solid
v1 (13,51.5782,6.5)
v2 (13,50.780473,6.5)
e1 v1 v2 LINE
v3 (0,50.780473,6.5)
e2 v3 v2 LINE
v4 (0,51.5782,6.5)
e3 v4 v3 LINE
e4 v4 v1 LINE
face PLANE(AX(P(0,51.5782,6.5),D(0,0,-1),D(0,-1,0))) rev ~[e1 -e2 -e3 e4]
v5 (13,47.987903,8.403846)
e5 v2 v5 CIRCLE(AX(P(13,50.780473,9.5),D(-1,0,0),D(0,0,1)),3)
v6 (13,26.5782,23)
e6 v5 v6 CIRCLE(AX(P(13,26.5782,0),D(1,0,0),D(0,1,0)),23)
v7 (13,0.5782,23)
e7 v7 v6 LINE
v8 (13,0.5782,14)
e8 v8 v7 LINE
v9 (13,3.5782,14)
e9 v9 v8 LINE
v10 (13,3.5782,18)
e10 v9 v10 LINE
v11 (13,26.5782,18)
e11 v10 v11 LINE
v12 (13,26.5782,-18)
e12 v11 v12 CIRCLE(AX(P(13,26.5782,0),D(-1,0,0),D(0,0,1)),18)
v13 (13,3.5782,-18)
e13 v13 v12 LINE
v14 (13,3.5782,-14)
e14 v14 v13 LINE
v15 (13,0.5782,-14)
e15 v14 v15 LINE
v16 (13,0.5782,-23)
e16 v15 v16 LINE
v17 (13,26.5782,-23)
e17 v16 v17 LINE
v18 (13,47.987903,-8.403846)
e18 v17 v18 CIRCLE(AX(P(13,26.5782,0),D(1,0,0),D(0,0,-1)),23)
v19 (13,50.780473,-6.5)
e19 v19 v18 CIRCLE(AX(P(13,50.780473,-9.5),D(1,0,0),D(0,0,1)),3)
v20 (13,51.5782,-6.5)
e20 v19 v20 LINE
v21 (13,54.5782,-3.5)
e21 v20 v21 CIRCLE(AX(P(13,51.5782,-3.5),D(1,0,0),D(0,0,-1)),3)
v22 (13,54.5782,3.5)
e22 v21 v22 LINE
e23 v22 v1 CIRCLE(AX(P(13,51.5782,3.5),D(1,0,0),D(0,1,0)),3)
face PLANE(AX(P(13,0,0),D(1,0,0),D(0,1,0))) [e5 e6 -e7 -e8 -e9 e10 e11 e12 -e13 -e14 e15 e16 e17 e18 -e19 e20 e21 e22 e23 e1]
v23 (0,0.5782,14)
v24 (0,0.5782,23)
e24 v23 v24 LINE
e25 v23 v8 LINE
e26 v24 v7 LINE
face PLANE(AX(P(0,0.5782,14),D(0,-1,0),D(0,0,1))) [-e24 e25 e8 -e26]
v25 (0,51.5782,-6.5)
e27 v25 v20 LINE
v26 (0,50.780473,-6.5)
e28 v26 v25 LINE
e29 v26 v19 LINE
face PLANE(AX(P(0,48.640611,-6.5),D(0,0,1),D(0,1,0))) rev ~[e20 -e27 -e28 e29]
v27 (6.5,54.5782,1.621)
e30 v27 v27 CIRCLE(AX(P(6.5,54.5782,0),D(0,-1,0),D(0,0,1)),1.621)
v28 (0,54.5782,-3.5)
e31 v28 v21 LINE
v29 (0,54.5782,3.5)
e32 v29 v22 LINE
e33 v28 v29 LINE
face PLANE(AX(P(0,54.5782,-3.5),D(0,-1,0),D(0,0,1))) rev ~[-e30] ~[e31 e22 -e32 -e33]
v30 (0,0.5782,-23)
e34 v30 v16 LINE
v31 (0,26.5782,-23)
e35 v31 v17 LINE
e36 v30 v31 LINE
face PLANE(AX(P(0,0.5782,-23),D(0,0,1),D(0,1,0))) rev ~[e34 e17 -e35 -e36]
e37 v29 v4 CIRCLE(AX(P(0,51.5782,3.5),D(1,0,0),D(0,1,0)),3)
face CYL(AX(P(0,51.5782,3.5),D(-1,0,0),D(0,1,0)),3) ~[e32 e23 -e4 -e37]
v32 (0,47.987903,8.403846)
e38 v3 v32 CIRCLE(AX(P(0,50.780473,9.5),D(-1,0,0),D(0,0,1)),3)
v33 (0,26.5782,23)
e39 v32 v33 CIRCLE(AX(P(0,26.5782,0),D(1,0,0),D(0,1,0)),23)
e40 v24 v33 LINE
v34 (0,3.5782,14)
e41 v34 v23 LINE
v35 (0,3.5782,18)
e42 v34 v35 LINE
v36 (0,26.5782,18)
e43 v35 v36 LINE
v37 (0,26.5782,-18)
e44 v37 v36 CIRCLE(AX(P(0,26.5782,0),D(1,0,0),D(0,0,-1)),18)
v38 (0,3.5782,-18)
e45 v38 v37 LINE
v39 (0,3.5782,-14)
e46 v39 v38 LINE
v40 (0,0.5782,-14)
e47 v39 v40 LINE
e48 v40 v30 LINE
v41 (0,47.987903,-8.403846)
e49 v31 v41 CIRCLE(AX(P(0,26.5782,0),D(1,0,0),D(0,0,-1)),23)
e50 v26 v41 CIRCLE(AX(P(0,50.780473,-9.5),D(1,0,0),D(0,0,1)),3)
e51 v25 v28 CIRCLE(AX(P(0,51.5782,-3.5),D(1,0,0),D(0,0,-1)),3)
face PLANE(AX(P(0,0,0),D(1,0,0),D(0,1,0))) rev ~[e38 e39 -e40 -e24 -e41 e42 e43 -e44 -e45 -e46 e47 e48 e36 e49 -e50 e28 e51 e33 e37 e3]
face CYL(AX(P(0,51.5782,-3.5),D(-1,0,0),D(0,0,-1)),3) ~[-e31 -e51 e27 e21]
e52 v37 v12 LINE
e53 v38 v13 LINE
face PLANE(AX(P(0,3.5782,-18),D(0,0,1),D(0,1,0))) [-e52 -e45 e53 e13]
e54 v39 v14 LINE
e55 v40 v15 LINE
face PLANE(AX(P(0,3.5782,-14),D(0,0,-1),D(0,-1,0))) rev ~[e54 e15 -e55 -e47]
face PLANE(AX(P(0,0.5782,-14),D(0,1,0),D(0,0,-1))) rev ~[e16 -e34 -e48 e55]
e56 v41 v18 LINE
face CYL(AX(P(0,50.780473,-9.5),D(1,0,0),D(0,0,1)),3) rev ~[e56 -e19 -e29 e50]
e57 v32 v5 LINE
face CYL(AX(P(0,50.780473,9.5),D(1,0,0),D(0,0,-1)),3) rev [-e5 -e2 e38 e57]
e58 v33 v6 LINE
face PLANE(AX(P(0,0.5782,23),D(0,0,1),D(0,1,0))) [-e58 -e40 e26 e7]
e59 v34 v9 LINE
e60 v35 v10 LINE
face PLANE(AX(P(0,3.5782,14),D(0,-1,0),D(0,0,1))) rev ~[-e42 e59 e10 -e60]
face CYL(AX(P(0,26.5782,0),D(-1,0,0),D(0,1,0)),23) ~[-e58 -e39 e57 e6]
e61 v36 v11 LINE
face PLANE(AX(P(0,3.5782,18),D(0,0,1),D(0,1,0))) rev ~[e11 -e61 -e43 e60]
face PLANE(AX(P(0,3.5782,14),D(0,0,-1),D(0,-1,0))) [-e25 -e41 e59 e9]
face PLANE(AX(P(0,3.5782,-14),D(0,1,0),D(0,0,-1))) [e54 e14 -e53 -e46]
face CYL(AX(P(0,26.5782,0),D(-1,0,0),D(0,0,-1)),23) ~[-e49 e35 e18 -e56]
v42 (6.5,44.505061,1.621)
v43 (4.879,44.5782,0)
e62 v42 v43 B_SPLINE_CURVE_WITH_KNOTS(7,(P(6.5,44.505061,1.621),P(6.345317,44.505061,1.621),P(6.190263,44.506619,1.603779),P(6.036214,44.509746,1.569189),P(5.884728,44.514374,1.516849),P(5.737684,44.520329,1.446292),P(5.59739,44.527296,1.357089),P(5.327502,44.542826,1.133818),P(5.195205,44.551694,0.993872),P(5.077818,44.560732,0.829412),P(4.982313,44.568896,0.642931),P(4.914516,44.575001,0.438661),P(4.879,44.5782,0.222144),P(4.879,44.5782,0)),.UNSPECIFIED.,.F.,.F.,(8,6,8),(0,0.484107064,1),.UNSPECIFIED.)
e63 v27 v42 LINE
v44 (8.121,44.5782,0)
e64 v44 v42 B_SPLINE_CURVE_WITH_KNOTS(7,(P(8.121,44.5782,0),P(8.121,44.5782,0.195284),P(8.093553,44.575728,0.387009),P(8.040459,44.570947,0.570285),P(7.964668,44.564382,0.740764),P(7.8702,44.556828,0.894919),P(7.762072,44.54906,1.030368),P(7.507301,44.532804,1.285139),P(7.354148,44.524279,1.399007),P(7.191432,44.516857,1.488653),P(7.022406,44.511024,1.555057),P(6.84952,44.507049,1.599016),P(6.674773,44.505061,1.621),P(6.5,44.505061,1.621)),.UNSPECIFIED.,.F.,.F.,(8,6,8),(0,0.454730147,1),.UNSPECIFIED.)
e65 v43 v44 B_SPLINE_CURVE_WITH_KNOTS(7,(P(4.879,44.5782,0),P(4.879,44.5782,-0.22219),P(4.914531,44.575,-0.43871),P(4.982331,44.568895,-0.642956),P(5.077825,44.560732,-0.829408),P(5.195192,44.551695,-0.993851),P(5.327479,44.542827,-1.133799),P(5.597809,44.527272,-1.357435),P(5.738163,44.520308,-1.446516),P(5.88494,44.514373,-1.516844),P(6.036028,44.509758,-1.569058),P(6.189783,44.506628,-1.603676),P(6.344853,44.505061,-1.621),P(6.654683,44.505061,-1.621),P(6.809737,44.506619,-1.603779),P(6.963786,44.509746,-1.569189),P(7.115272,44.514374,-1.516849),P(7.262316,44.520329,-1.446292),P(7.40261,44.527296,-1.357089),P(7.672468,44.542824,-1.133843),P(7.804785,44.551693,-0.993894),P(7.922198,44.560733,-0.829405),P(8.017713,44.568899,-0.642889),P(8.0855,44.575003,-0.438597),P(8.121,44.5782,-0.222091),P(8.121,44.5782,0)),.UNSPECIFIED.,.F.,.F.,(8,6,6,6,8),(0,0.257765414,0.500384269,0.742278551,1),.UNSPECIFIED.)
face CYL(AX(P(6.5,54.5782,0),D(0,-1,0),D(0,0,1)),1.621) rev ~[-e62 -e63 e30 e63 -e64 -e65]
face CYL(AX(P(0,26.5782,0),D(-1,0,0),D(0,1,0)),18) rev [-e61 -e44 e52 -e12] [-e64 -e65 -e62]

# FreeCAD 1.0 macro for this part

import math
import FreeCAD as App
import Part
import Sketcher
Q = App.Units.Quantity


def edges_at(feature, points):
    """Names of the edges that pass closest to the given points."""
    edges = feature.Shape.Edges
    near = lambda p: min(range(len(edges)), key=lambda i: edges[i].distToShape(Part.Vertex(*p))[0])
    return sorted({f"Edge{near(p) + 1}" for p in points})

doc = App.newDocument("Part")
body = doc.addObject("PartDesign::Body", "Body")

# Sketch on YZ plane
sketch1 = doc.addObject("Sketcher::SketchObject", "Sketch")
body.addObject(sketch1)
sketch1.AttachmentSupport = (doc.YZ_Plane, [""])
sketch1.MapMode = "FlatFace"
sketch1.addGeometry([
    Part.LineSegment(App.Vector(0.5782, 14, 0), App.Vector(3.5782, 14, 0)),  # 0
    Part.LineSegment(App.Vector(3.5782, 14, 0), App.Vector(3.5782, 18, 0)),  # 1
    Part.LineSegment(App.Vector(3.5782, 18, 0), App.Vector(26.5782, 18, 0)),  # 2
    Part.ArcOfCircle(Part.Circle(App.Vector(26.5782, 0, 0), App.Vector(0, 0, 1), 18), math.radians(-90), math.radians(90)),  # 3
    Part.LineSegment(App.Vector(26.5782, -18, 0), App.Vector(3.5782, -18, 0)),  # 4
    Part.LineSegment(App.Vector(3.5782, -18, 0), App.Vector(3.5782, -14, 0)),  # 5
    Part.LineSegment(App.Vector(3.5782, -14, 0), App.Vector(0.5782, -14, 0)),  # 6
    Part.LineSegment(App.Vector(0.5782, -14, 0), App.Vector(0.5782, -23, 0)),  # 7
    Part.LineSegment(App.Vector(0.5782, -23, 0), App.Vector(26.5782, -23, 0)),  # 8
    Part.ArcOfCircle(Part.Circle(App.Vector(26.5782, 0, 0), App.Vector(0, 0, 1), 23), math.radians(-90), math.radians(-16.415962)),  # 9
    Part.LineSegment(App.Vector(48.640611, -6.5, 0), App.Vector(51.5782, -6.5, 0)),  # 10
    Part.ArcOfCircle(Part.Circle(App.Vector(51.5782, -3.5, 0), App.Vector(0, 0, 1), 3), math.radians(-90), math.radians(0)),  # 11
    Part.LineSegment(App.Vector(54.5782, -3.5, 0), App.Vector(54.5782, 3.5, 0)),  # 12
    Part.ArcOfCircle(Part.Circle(App.Vector(51.5782, 3.5, 0), App.Vector(0, 0, 1), 3), math.radians(0), math.radians(90)),  # 13
    Part.LineSegment(App.Vector(51.5782, 6.5, 0), App.Vector(48.640611, 6.5, 0)),  # 14
    Part.ArcOfCircle(Part.Circle(App.Vector(26.5782, 0, 0), App.Vector(0, 0, 1), 23), math.radians(16.415962), math.radians(90)),  # 15
    Part.LineSegment(App.Vector(26.5782, 23, 0), App.Vector(0.5782, 23, 0)),  # 16
    Part.LineSegment(App.Vector(0.5782, 23, 0), App.Vector(0.5782, 14, 0)),  # 17
], False)
sketch1.addConstraint([
    Sketcher.Constraint("Coincident", 0, 2, 1, 1),
    Sketcher.Constraint("Coincident", 1, 2, 2, 1),
    Sketcher.Constraint("Tangent", 2, 2, 3, 2),
    Sketcher.Constraint("Tangent", 3, 1, 4, 1),
    Sketcher.Constraint("Coincident", 4, 2, 5, 1),
    Sketcher.Constraint("Coincident", 5, 2, 6, 1),
    Sketcher.Constraint("Coincident", 6, 2, 7, 1),
    Sketcher.Constraint("Coincident", 7, 2, 8, 1),
    Sketcher.Constraint("Tangent", 8, 2, 9, 1),
    Sketcher.Constraint("Coincident", 9, 2, 10, 1),
    Sketcher.Constraint("Tangent", 10, 2, 11, 1),
    Sketcher.Constraint("Tangent", 11, 2, 12, 1),
    Sketcher.Constraint("Tangent", 12, 2, 13, 1),
    Sketcher.Constraint("Tangent", 13, 2, 14, 1),
    Sketcher.Constraint("Coincident", 14, 2, 15, 1),
    Sketcher.Constraint("Tangent", 15, 2, 16, 1),
    Sketcher.Constraint("Coincident", 16, 2, 17, 1),
    Sketcher.Constraint("Coincident", 17, 2, 0, 1),
    Sketcher.Constraint("Horizontal", 0),
    Sketcher.Constraint("Vertical", 1),
    Sketcher.Constraint("Horizontal", 2),
    Sketcher.Constraint("Horizontal", 4),
    Sketcher.Constraint("Vertical", 5),
    Sketcher.Constraint("Horizontal", 6),
    Sketcher.Constraint("Vertical", 7),
    Sketcher.Constraint("Horizontal", 8),
    Sketcher.Constraint("Horizontal", 10),
    Sketcher.Constraint("Vertical", 12),
    Sketcher.Constraint("Horizontal", 14),
    Sketcher.Constraint("Horizontal", 16),
    Sketcher.Constraint("Vertical", 17),
    Sketcher.Constraint("Coincident", 9, 3, 3, 3),
    Sketcher.Constraint("Coincident", 15, 3, 3, 3),
    Sketcher.Constraint("Equal", 11, 13),
    Sketcher.Constraint("Equal", 9, 15),
    Sketcher.Constraint("Symmetric", 1, 2, 4, 2, -1),
    Sketcher.Constraint("Symmetric", 6, 2, 17, 2, -1),
    Sketcher.Constraint("Vertical", 9, 2, 14, 2),
    Sketcher.Constraint("Radius", 9, Q("23 mm")),
    Sketcher.Constraint("Radius", 11, Q("3 mm")),
    Sketcher.Constraint("DistanceX", 0, 1, 0, 2, Q("3 mm")),
    Sketcher.Constraint("DistanceX", 2, 1, 2, 2, Q("23 mm")),
    Sketcher.Constraint("DistanceY", 7, 2, 7, 1, Q("9 mm")),
    Sketcher.Constraint("Radius", 3, Q("18 mm")),
    Sketcher.Constraint("DistanceY", 10, 2, 13, 2, Q("13 mm")),
    Sketcher.Constraint("DistanceX", 3, 3, 11, 3, Q("25 mm")),
    Sketcher.Constraint("DistanceX", -1, 1, 3, 3, Q("26.5782 mm")),
])
pad1 = doc.addObject("PartDesign::Pad", "Pad")
body.addObject(pad1)
pad1.Profile = sketch1
pad1.Length = 13
doc.recompute()

fillet = doc.addObject("PartDesign::Fillet", "Fillet")
body.addObject(fillet)
fillet.Base = (pad1, edges_at(pad1, [(6.5, 48.641, -6.5)]))
fillet.Radius = 3
doc.recompute()

fillet2 = doc.addObject("PartDesign::Fillet", "Fillet001")
body.addObject(fillet2)
fillet2.Base = (fillet, edges_at(fillet, [(6.5, 48.641, 6.5)]))
fillet2.Radius = 3

# Sketch on XZ plane
sketch2 = doc.addObject("Sketcher::SketchObject", "Sketch001")
body.addObject(sketch2)
sketch2.AttachmentSupport = (doc.XZ_Plane, [""])
sketch2.MapMode = "FlatFace"
sketch2.AttachmentOffset = App.Placement(App.Vector(0, 0, -54.5782), App.Rotation())
sketch2.addGeometry(Part.Circle(App.Vector(6.5, 0, 0), App.Vector(0, 0, 1), 1.621), False)
sketch2.addConstraint([
    Sketcher.Constraint("PointOnObject", 0, 3, -1),
    Sketcher.Constraint("Diameter", 0, Q("3.242 mm")),
    Sketcher.Constraint("DistanceX", -1, 1, 0, 3, Q("6.5 mm")),
])
doc.recompute()
hole = doc.addObject("PartDesign::Hole", "Hole")
body.addObject(hole)
hole.Profile = sketch2
hole.ThreadType = "None"
hole.Diameter = 3.242
hole.DepthType = "ThroughAll"
hole.Reversed = True

doc.recompute()
